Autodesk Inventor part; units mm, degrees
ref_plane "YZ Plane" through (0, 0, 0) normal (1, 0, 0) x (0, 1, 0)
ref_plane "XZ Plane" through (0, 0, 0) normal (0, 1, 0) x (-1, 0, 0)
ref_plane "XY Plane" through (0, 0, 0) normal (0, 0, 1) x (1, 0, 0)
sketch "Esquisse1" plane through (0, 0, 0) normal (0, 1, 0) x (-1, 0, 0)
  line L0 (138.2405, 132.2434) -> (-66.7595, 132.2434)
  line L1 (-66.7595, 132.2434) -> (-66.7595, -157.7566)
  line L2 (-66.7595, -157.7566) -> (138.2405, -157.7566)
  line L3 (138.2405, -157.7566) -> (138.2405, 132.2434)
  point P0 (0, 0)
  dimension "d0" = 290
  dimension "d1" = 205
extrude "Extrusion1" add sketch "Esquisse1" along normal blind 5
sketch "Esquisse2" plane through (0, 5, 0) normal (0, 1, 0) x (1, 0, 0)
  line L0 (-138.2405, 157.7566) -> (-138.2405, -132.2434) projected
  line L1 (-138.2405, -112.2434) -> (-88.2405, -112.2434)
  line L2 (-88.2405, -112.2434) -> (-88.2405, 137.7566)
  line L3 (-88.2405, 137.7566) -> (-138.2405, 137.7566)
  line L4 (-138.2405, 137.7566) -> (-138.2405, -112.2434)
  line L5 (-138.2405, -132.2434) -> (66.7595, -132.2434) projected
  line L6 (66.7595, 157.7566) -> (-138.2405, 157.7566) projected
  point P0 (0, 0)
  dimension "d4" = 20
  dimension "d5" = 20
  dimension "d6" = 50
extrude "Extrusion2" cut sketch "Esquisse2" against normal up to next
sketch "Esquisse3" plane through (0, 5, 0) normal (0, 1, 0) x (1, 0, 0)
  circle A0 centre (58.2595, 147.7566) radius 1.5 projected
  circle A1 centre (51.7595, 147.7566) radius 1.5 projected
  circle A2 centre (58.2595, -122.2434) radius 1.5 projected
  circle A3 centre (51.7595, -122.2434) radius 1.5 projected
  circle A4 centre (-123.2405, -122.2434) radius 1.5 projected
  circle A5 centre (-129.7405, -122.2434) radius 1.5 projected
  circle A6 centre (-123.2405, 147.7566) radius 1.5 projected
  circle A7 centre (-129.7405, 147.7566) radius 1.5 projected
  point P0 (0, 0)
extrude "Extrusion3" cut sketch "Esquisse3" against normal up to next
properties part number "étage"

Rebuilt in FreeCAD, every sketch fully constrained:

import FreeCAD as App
import Part
import Sketcher

V = App.Vector


def add_polygon(sketch, points):
    """Adds a closed chain of lines whose ends are joined by coincident constraints."""
    first, n = sketch.GeometryCount, len(points)
    for a, b in zip(points, points[1:] + points[:1]):
        sketch.addGeometry(Part.LineSegment(App.Vector(*a, 0), App.Vector(*b, 0)), False)
    for i in range(n):
        sketch.addConstraint(Sketcher.Constraint("Coincident", first + i, 2, first + (i + 1) % n, 1))

doc = App.newDocument("Part")
body = doc.addObject("PartDesign::Body", "Body")

# Sketch on XZ plane
sketch1 = doc.addObject("Sketcher::SketchObject", "Sketch")
body.addObject(sketch1)
sketch1.AttachmentSupport = (doc.XZ_Plane, [""])
sketch1.MapMode = "FlatFace"
add_polygon(sketch1, [(-138, -158), (-138, 132), (67, 132), (67, -158)])  # lines 0-3
sketch1.addConstraint(Sketcher.Constraint("Vertical", 0))
sketch1.addConstraint(Sketcher.Constraint("Horizontal", 1))
sketch1.addConstraint(Sketcher.Constraint("Vertical", 2))
sketch1.addConstraint(Sketcher.Constraint("Horizontal", 3))
sketch1.addConstraint(Sketcher.Constraint("DistanceX", 1, 1, 1, 2, 205.0))
sketch1.addConstraint(Sketcher.Constraint("DistanceY", 0, 1, 0, 2, 290.0))
sketch1.addConstraint(Sketcher.Constraint("DistanceX", 0, 2, -1, 1, 138.2405))
sketch1.addConstraint(Sketcher.Constraint("DistanceY", -1, 1, 0, 2, 132.2434))
pad1 = doc.addObject("PartDesign::Pad", "Pad")
body.addObject(pad1)
pad1.Profile = sketch1
pad1.Length = 5
pad1.Reversed = True

# Sketch on XZ plane
sketch2 = doc.addObject("Sketcher::SketchObject", "Sketch001")
body.addObject(sketch2)
sketch2.AttachmentSupport = (doc.XZ_Plane, [""])
sketch2.MapMode = "FlatFace"
sketch2.AttachmentOffset = App.Placement(V(0, 0, -5), App.Rotation())
add_polygon(sketch2, [(-88, -138), (-138, -138), (-138, 112), (-88, 112)])  # lines 0-3
sketch2.addConstraint(Sketcher.Constraint("Horizontal", 0))
sketch2.addConstraint(Sketcher.Constraint("Vertical", 1))
sketch2.addConstraint(Sketcher.Constraint("Horizontal", 2))
sketch2.addConstraint(Sketcher.Constraint("Vertical", 3))
sketch2.addConstraint(Sketcher.Constraint("DistanceX", 0, 2, 0, 1, 50.0))
sketch2.addConstraint(Sketcher.Constraint("DistanceY", 1, 1, 1, 2, 250.0))
sketch2.addConstraint(Sketcher.Constraint("DistanceX", 0, 2, -1, 1, 138.2405))
sketch2.addConstraint(Sketcher.Constraint("DistanceY", 0, 2, -1, 1, 137.7566))
pocket1 = doc.addObject("PartDesign::Pocket", "Pocket")
body.addObject(pocket1)
pocket1.Profile = sketch2
pocket1.Type = "UpToFirst"
pocket1.Reversed = True

# Sketch on XZ plane
sketch3 = doc.addObject("Sketcher::SketchObject", "Sketch002")
body.addObject(sketch3)
sketch3.AttachmentSupport = (doc.XZ_Plane, [""])
sketch3.MapMode = "FlatFace"
sketch3.AttachmentOffset = App.Placement(V(0, 0, -5), App.Rotation())
sketch3.addGeometry(Part.Circle(V(58.3, -147.8, 0), V(0, 0, 1), 1.5), False)
sketch3.addGeometry(Part.Circle(V(51.8, -147.8, 0), V(0, 0, 1), 1.5), False)
sketch3.addGeometry(Part.Circle(V(58.3, 122.2, 0), V(0, 0, 1), 1.5), False)
sketch3.addGeometry(Part.Circle(V(51.8, 122.2, 0), V(0, 0, 1), 1.5), False)
sketch3.addGeometry(Part.Circle(V(-123.2, 122.2, 0), V(0, 0, 1), 1.5), False)
sketch3.addGeometry(Part.Circle(V(-129.7, 122.2, 0), V(0, 0, 1), 1.5), False)
sketch3.addGeometry(Part.Circle(V(-123.2, -147.8, 0), V(0, 0, 1), 1.5), False)
sketch3.addGeometry(Part.Circle(V(-129.7, -147.8, 0), V(0, 0, 1), 1.5), False)
sketch3.addConstraint(Sketcher.Constraint("Equal", 0, 1))
sketch3.addConstraint(Sketcher.Constraint("Equal", 1, 2))
sketch3.addConstraint(Sketcher.Constraint("Equal", 2, 3))
sketch3.addConstraint(Sketcher.Constraint("Equal", 3, 4))
sketch3.addConstraint(Sketcher.Constraint("Equal", 4, 5))
sketch3.addConstraint(Sketcher.Constraint("Equal", 5, 6))
sketch3.addConstraint(Sketcher.Constraint("Equal", 6, 7))
sketch3.addConstraint(Sketcher.Constraint("Horizontal", 0, 3, 1, 3))
sketch3.addConstraint(Sketcher.Constraint("Horizontal", 2, 3, 3, 3))
sketch3.addConstraint(Sketcher.Constraint("Horizontal", 3, 3, 4, 3))
sketch3.addConstraint(Sketcher.Constraint("Horizontal", 4, 3, 5, 3))
sketch3.addConstraint(Sketcher.Constraint("Horizontal", 1, 3, 6, 3))
sketch3.addConstraint(Sketcher.Constraint("Horizontal", 6, 3, 7, 3))
sketch3.addConstraint(Sketcher.Constraint("Vertical", 0, 3, 2, 3))
sketch3.addConstraint(Sketcher.Constraint("Vertical", 1, 3, 3, 3))
sketch3.addConstraint(Sketcher.Constraint("Vertical", 4, 3, 6, 3))
sketch3.addConstraint(Sketcher.Constraint("Vertical", 5, 3, 7, 3))
sketch3.addConstraint(Sketcher.Constraint("Diameter", 0, 3.0))
sketch3.addConstraint(Sketcher.Constraint("DistanceY", 0, 3, 2, 3, 270.0))
sketch3.addConstraint(Sketcher.Constraint("DistanceX", 4, 3, 3, 3, 175.0))
sketch3.addConstraint(Sketcher.Constraint("DistanceX", 5, 3, 2, 3, 188.0))
sketch3.addConstraint(Sketcher.Constraint("DistanceX", 1, 3, 0, 3, 6.5))
sketch3.addConstraint(Sketcher.Constraint("DistanceX", -1, 1, 0, 3, 58.2595))
sketch3.addConstraint(Sketcher.Constraint("DistanceY", 0, 3, -1, 1, 147.7566))
pocket2 = doc.addObject("PartDesign::Pocket", "Pocket001")
body.addObject(pocket2)
pocket2.Profile = sketch3
pocket2.Length = 5
pocket2.Reversed = True

doc.recompute()
